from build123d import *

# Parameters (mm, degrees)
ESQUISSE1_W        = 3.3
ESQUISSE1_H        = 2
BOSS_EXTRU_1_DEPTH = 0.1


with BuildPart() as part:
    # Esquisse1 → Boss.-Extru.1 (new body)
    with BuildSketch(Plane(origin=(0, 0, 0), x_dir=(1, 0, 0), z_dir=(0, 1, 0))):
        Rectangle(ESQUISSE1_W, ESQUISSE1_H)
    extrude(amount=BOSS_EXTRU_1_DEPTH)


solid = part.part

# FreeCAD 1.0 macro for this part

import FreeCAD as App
import Part
import Sketcher
Q = App.Units.Quantity

doc = App.newDocument("Part")
body = doc.addObject("PartDesign::Body", "Body")

sketch1 = body.newObject("Sketcher::SketchObject", "Sketch")
sketch1.AttachmentSupport = (doc.getObject("XZ_Plane"), [""])
sketch1.MapMode = "FlatFace"
sketch1.addGeometry(Part.LineSegment(App.Vector(-1.6, -1, 0), App.Vector(-1.6, 1, 0)), False)
sketch1.addGeometry(Part.LineSegment(App.Vector(-1.6, 1, 0), App.Vector(1.6, 1, 0)), False)
sketch1.addGeometry(Part.LineSegment(App.Vector(1.6, 1, 0), App.Vector(1.6, -1, 0)), False)
sketch1.addGeometry(Part.LineSegment(App.Vector(1.6, -1, 0), App.Vector(-1.6, -1, 0)), False)
sketch1.addConstraint(Sketcher.Constraint("Coincident", 0, 2, 1, 1))
sketch1.addConstraint(Sketcher.Constraint("Coincident", 1, 2, 2, 1))
sketch1.addConstraint(Sketcher.Constraint("Coincident", 2, 2, 3, 1))
sketch1.addConstraint(Sketcher.Constraint("Coincident", 3, 2, 0, 1))
sketch1.addConstraint(Sketcher.Constraint("Vertical", 0))
sketch1.addConstraint(Sketcher.Constraint("Horizontal", 1))
sketch1.addConstraint(Sketcher.Constraint("Vertical", 2))
sketch1.addConstraint(Sketcher.Constraint("Horizontal", 3))
sketch1.addConstraint(Sketcher.Constraint("Symmetric", 0, 2, 2, 2, -1, 1))
sketch1.addConstraint(Sketcher.Constraint("DistanceY", 0, 1, 0, 2, Q("2 mm")))
sketch1.addConstraint(Sketcher.Constraint("DistanceX", 1, 1, 1, 2, Q("3.3 mm")))
pad1 = body.newObject("PartDesign::Pad", "Pad")
pad1.Profile = sketch1
pad1.Length = 0.1
pad1.Reversed = True

doc.recompute()
